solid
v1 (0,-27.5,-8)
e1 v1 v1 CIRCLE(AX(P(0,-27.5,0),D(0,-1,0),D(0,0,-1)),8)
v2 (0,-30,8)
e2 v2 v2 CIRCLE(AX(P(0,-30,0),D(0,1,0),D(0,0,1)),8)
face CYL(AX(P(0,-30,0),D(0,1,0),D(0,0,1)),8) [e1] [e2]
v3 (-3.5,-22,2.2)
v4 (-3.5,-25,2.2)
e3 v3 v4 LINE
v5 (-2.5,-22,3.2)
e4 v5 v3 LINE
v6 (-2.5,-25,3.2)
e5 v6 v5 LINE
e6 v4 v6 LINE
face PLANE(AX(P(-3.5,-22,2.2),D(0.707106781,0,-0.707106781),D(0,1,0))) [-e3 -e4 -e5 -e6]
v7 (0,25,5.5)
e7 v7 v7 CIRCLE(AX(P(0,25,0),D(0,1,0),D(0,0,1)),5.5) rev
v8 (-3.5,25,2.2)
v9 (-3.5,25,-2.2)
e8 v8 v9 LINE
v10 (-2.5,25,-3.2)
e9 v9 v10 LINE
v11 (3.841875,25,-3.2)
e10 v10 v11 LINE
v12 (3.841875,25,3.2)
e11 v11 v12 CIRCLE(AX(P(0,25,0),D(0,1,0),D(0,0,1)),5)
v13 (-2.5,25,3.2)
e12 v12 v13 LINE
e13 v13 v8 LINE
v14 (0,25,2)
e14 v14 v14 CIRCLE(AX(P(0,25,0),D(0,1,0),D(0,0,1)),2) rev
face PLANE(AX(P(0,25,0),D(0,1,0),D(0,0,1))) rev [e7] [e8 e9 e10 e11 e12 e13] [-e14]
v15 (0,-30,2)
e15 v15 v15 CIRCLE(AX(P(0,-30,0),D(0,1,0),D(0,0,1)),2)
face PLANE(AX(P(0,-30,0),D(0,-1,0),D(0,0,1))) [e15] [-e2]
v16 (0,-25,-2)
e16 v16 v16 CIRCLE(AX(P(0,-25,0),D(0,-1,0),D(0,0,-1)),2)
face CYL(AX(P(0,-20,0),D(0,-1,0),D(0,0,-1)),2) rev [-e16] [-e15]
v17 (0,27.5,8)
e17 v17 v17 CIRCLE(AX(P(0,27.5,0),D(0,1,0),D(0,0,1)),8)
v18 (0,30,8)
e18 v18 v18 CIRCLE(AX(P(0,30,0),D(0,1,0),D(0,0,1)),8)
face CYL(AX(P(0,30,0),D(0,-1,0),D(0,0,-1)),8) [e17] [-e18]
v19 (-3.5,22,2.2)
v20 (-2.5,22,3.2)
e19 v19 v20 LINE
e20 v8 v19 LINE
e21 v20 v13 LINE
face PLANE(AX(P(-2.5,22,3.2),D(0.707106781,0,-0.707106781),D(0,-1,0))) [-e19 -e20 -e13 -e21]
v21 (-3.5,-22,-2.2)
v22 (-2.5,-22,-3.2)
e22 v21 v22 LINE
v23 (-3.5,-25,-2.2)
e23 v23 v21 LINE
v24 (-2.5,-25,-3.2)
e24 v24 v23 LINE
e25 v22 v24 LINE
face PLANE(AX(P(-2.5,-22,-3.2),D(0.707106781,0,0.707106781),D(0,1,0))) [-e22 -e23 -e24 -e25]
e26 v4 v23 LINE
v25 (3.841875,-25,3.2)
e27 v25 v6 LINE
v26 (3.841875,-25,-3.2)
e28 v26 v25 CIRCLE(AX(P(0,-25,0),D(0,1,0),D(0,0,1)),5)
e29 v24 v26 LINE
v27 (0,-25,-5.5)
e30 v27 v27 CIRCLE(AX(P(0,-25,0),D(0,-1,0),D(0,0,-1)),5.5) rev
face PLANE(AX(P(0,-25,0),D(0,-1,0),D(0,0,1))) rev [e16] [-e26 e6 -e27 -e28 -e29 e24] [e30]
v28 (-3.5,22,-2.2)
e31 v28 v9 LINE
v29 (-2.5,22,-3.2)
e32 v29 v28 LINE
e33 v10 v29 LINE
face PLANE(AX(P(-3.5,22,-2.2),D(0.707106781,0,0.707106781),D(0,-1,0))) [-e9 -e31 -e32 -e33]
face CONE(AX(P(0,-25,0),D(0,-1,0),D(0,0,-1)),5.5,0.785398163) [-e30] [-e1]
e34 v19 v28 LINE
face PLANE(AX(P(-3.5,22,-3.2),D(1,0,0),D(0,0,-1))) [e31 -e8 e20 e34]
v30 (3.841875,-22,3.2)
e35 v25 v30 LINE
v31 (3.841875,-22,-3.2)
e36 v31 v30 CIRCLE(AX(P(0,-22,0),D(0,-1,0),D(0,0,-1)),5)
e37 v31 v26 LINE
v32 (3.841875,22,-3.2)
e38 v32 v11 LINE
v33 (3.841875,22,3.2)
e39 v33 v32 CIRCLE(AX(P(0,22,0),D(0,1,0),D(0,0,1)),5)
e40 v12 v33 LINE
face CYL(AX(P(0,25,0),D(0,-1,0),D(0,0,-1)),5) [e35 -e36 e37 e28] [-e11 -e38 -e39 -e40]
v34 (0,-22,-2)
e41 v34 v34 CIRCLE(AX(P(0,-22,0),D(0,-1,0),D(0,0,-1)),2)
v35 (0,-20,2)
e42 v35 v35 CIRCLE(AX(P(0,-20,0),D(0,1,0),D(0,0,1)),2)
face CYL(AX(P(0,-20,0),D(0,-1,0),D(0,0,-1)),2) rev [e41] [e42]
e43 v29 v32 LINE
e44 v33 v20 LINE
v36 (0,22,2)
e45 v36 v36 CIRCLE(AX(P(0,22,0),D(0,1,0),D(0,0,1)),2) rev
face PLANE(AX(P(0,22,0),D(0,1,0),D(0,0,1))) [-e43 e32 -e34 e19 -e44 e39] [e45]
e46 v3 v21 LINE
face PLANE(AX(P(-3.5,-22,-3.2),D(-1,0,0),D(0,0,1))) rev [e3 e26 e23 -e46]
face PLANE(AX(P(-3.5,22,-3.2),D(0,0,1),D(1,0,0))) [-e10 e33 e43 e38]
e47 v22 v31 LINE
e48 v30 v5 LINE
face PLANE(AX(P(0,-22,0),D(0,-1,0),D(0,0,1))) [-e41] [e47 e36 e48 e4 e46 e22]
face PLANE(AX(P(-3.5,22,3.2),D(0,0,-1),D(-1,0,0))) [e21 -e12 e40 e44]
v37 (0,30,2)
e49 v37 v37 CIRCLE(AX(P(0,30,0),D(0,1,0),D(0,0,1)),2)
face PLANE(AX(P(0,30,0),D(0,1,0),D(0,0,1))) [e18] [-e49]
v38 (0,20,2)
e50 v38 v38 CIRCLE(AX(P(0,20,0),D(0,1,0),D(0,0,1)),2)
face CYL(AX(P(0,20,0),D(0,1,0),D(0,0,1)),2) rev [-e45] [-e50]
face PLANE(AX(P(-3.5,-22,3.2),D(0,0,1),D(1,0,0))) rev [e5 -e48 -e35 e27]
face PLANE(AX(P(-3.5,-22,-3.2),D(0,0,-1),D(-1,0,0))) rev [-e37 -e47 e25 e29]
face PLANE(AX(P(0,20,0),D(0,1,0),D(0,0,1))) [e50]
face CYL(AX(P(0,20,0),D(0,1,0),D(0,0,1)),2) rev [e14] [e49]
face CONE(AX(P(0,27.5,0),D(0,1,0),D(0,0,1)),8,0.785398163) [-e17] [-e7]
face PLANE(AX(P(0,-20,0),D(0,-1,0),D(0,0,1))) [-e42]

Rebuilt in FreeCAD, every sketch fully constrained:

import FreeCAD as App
import Part
import Sketcher

V = App.Vector


def edges_at(feature, points):
    """Names of the edges that pass closest to the given points."""
    edges = feature.Shape.Edges
    near = lambda p: min(range(len(edges)), key=lambda i: edges[i].distToShape(Part.Vertex(*p))[0])
    return sorted({f"Edge{near(p) + 1}" for p in points})

doc = App.newDocument("Part")
params = doc.addObject("Spreadsheet::Sheet", "Params")
for row, (alias, value) in enumerate([
    ("sketch1_diameter", "10 mm"),
    ("pad1_length", "50 mm"),
    ("sketch2_diameter", "16 mm"),
    ("pad2_length", "5 mm"),
    ("chamfer_size", "2.5 mm"),
    ("sketch3_diameter", "4 mm"),
    ("pocket1_length", "10 mm"),
    ("sketch4_height", "6.4 mm"),
    ("pocket2_length", "3 mm"),
    ("chamfer2_size", "1 mm"),
    ("chamfer3_size", "2.5 mm"),
    ("chamfer4_size", "1 mm"),
], start=1):
    params.set(f"A{row}", alias)
    params.set(f"B{row}", "=" + value)
    params.setAlias(f"B{row}", alias)

body = doc.addObject("PartDesign::Body", "Body")

sketch1 = body.newObject("Sketcher::SketchObject", "Sketch")
sketch1.AttachmentSupport = (doc.getObject("XZ_Plane"), [""])
sketch1.MapMode = "FlatFace"
sketch1.addGeometry(Part.Circle(V(0, 0, 0), V(0, 0, 1), 5), False)
sketch1.addConstraint(Sketcher.Constraint("Coincident", 0, 3, -1, 1))
sketch1.addConstraint(Sketcher.Constraint("Diameter", 0, 10.0))
sketch1.setExpression("Constraints[1]", "Params.sketch1_diameter")
pad1 = body.newObject("PartDesign::Pad", "Pad")
pad1.Profile = sketch1
pad1.setExpression("Length", "Params.pad1_length")
pad1.Midplane = True

sketch2 = body.newObject("Sketcher::SketchObject", "Sketch001")
sketch2.AttachmentSupport = (doc.getObject("XZ_Plane"), [""])
sketch2.MapMode = "FlatFace"
sketch2.AttachmentOffset = App.Placement(V(0, 0, -25), App.Rotation())
sketch2.addGeometry(Part.Circle(V(0, 0, 0), V(0, 0, 1), 8), False)
sketch2.addConstraint(Sketcher.Constraint("Coincident", 0, 3, -1, 1))
sketch2.addConstraint(Sketcher.Constraint("Diameter", 0, 16.0))
sketch2.setExpression("Constraints[1]", "Params.sketch2_diameter")
pad2 = body.newObject("PartDesign::Pad", "Pad001")
pad2.Profile = sketch2
pad2.setExpression("Length", "Params.pad2_length")
pad2.Reversed = True
doc.recompute()

chamfer = body.newObject("PartDesign::Chamfer", "Chamfer")
chamfer.Base = (pad2, edges_at(pad2, [(0, 25, -8)]))
chamfer.setExpression("Size", "Params.chamfer_size")

sketch3 = body.newObject("Sketcher::SketchObject", "Sketch002")
sketch3.AttachmentSupport = (doc.getObject("XZ_Plane"), [""])
sketch3.MapMode = "FlatFace"
sketch3.AttachmentOffset = App.Placement(V(0, 0, -30), App.Rotation())
sketch3.addGeometry(Part.Circle(V(0, 0, 0), V(0, 0, 1), 2), False)
sketch3.addConstraint(Sketcher.Constraint("Coincident", 0, 3, -1, 1))
sketch3.addConstraint(Sketcher.Constraint("Diameter", 0, 4.0))
sketch3.setExpression("Constraints[1]", "Params.sketch3_diameter")
pocket1 = body.newObject("PartDesign::Pocket", "Pocket")
pocket1.Profile = sketch3
pocket1.setExpression("Length", "Params.pocket1_length")
pocket1.Reversed = True

sketch4 = body.newObject("Sketcher::SketchObject", "Sketch003")
sketch4.AttachmentSupport = (doc.getObject("XZ_Plane"), [""])
sketch4.MapMode = "FlatFace"
sketch4.AttachmentOffset = App.Placement(V(0, 0, -25), App.Rotation())
sketch4.addGeometry(Part.LineSegment(V(11, -3, 0), V(11, 3, 0)), False)
sketch4.addGeometry(Part.LineSegment(V(11, 3, 0), V(-4, 3, 0)), False)
sketch4.addGeometry(Part.LineSegment(V(-4, 3, 0), V(-4, -3, 0)), False)
sketch4.addGeometry(Part.LineSegment(V(-4, -3, 0), V(11, -3, 0)), False)
sketch4.addConstraint(Sketcher.Constraint("Coincident", 0, 2, 1, 1))
sketch4.addConstraint(Sketcher.Constraint("Coincident", 1, 2, 2, 1))
sketch4.addConstraint(Sketcher.Constraint("Coincident", 2, 2, 3, 1))
sketch4.addConstraint(Sketcher.Constraint("Coincident", 3, 2, 0, 1))
sketch4.addConstraint(Sketcher.Constraint("Vertical", 0))
sketch4.addConstraint(Sketcher.Constraint("Horizontal", 1))
sketch4.addConstraint(Sketcher.Constraint("Vertical", 2))
sketch4.addConstraint(Sketcher.Constraint("Horizontal", 3))
sketch4.addConstraint(Sketcher.Constraint("DistanceY", 0, 1, 0, 2, 6.4))
sketch4.addConstraint(Sketcher.Constraint("DistanceY", -1, 1, 0, 2, 3.2))
sketch4.addConstraint(Sketcher.Constraint("DistanceX", 1, 2, -1, 1, 3.5))
sketch4.addConstraint(Sketcher.Constraint("DistanceX", 1, 2, 1, 1, 14.643636))
sketch4.setExpression("Constraints[8]", "Params.sketch4_height")
pocket2 = body.newObject("PartDesign::Pocket", "Pocket001")
pocket2.Profile = sketch4
pocket2.setExpression("Length", "Params.pocket2_length")
pocket2.Reversed = True
doc.recompute()

chamfer2 = body.newObject("PartDesign::Chamfer", "Chamfer001")
chamfer2.Base = (pocket2, edges_at(pocket2, [(-3.5, 23.5, -3.2), (-3.5, 23.5, 3.2)]))
chamfer2.setExpression("Size", "Params.chamfer2_size")
doc.recompute()

mirrored = body.newObject("PartDesign::Mirrored", "Mirrored")
mirrored.Originals = [pad2, pocket1, pocket2]
mirrored.MirrorPlane = (doc.getObject("XZ_Plane"), [""])
body.Tip = mirrored
doc.recompute()

chamfer3 = body.newObject("PartDesign::Chamfer", "Chamfer002")
chamfer3.Base = (mirrored, edges_at(mirrored, [(0, -25, -8)]))
chamfer3.setExpression("Size", "Params.chamfer3_size")
doc.recompute()

chamfer4 = body.newObject("PartDesign::Chamfer", "Chamfer003")
chamfer4.Base = (chamfer3, edges_at(chamfer3, [(-3.5, -23.5, -3.2), (-3.5, -23.5, 3.2)]))
chamfer4.setExpression("Size", "Params.chamfer4_size")

doc.recompute()
